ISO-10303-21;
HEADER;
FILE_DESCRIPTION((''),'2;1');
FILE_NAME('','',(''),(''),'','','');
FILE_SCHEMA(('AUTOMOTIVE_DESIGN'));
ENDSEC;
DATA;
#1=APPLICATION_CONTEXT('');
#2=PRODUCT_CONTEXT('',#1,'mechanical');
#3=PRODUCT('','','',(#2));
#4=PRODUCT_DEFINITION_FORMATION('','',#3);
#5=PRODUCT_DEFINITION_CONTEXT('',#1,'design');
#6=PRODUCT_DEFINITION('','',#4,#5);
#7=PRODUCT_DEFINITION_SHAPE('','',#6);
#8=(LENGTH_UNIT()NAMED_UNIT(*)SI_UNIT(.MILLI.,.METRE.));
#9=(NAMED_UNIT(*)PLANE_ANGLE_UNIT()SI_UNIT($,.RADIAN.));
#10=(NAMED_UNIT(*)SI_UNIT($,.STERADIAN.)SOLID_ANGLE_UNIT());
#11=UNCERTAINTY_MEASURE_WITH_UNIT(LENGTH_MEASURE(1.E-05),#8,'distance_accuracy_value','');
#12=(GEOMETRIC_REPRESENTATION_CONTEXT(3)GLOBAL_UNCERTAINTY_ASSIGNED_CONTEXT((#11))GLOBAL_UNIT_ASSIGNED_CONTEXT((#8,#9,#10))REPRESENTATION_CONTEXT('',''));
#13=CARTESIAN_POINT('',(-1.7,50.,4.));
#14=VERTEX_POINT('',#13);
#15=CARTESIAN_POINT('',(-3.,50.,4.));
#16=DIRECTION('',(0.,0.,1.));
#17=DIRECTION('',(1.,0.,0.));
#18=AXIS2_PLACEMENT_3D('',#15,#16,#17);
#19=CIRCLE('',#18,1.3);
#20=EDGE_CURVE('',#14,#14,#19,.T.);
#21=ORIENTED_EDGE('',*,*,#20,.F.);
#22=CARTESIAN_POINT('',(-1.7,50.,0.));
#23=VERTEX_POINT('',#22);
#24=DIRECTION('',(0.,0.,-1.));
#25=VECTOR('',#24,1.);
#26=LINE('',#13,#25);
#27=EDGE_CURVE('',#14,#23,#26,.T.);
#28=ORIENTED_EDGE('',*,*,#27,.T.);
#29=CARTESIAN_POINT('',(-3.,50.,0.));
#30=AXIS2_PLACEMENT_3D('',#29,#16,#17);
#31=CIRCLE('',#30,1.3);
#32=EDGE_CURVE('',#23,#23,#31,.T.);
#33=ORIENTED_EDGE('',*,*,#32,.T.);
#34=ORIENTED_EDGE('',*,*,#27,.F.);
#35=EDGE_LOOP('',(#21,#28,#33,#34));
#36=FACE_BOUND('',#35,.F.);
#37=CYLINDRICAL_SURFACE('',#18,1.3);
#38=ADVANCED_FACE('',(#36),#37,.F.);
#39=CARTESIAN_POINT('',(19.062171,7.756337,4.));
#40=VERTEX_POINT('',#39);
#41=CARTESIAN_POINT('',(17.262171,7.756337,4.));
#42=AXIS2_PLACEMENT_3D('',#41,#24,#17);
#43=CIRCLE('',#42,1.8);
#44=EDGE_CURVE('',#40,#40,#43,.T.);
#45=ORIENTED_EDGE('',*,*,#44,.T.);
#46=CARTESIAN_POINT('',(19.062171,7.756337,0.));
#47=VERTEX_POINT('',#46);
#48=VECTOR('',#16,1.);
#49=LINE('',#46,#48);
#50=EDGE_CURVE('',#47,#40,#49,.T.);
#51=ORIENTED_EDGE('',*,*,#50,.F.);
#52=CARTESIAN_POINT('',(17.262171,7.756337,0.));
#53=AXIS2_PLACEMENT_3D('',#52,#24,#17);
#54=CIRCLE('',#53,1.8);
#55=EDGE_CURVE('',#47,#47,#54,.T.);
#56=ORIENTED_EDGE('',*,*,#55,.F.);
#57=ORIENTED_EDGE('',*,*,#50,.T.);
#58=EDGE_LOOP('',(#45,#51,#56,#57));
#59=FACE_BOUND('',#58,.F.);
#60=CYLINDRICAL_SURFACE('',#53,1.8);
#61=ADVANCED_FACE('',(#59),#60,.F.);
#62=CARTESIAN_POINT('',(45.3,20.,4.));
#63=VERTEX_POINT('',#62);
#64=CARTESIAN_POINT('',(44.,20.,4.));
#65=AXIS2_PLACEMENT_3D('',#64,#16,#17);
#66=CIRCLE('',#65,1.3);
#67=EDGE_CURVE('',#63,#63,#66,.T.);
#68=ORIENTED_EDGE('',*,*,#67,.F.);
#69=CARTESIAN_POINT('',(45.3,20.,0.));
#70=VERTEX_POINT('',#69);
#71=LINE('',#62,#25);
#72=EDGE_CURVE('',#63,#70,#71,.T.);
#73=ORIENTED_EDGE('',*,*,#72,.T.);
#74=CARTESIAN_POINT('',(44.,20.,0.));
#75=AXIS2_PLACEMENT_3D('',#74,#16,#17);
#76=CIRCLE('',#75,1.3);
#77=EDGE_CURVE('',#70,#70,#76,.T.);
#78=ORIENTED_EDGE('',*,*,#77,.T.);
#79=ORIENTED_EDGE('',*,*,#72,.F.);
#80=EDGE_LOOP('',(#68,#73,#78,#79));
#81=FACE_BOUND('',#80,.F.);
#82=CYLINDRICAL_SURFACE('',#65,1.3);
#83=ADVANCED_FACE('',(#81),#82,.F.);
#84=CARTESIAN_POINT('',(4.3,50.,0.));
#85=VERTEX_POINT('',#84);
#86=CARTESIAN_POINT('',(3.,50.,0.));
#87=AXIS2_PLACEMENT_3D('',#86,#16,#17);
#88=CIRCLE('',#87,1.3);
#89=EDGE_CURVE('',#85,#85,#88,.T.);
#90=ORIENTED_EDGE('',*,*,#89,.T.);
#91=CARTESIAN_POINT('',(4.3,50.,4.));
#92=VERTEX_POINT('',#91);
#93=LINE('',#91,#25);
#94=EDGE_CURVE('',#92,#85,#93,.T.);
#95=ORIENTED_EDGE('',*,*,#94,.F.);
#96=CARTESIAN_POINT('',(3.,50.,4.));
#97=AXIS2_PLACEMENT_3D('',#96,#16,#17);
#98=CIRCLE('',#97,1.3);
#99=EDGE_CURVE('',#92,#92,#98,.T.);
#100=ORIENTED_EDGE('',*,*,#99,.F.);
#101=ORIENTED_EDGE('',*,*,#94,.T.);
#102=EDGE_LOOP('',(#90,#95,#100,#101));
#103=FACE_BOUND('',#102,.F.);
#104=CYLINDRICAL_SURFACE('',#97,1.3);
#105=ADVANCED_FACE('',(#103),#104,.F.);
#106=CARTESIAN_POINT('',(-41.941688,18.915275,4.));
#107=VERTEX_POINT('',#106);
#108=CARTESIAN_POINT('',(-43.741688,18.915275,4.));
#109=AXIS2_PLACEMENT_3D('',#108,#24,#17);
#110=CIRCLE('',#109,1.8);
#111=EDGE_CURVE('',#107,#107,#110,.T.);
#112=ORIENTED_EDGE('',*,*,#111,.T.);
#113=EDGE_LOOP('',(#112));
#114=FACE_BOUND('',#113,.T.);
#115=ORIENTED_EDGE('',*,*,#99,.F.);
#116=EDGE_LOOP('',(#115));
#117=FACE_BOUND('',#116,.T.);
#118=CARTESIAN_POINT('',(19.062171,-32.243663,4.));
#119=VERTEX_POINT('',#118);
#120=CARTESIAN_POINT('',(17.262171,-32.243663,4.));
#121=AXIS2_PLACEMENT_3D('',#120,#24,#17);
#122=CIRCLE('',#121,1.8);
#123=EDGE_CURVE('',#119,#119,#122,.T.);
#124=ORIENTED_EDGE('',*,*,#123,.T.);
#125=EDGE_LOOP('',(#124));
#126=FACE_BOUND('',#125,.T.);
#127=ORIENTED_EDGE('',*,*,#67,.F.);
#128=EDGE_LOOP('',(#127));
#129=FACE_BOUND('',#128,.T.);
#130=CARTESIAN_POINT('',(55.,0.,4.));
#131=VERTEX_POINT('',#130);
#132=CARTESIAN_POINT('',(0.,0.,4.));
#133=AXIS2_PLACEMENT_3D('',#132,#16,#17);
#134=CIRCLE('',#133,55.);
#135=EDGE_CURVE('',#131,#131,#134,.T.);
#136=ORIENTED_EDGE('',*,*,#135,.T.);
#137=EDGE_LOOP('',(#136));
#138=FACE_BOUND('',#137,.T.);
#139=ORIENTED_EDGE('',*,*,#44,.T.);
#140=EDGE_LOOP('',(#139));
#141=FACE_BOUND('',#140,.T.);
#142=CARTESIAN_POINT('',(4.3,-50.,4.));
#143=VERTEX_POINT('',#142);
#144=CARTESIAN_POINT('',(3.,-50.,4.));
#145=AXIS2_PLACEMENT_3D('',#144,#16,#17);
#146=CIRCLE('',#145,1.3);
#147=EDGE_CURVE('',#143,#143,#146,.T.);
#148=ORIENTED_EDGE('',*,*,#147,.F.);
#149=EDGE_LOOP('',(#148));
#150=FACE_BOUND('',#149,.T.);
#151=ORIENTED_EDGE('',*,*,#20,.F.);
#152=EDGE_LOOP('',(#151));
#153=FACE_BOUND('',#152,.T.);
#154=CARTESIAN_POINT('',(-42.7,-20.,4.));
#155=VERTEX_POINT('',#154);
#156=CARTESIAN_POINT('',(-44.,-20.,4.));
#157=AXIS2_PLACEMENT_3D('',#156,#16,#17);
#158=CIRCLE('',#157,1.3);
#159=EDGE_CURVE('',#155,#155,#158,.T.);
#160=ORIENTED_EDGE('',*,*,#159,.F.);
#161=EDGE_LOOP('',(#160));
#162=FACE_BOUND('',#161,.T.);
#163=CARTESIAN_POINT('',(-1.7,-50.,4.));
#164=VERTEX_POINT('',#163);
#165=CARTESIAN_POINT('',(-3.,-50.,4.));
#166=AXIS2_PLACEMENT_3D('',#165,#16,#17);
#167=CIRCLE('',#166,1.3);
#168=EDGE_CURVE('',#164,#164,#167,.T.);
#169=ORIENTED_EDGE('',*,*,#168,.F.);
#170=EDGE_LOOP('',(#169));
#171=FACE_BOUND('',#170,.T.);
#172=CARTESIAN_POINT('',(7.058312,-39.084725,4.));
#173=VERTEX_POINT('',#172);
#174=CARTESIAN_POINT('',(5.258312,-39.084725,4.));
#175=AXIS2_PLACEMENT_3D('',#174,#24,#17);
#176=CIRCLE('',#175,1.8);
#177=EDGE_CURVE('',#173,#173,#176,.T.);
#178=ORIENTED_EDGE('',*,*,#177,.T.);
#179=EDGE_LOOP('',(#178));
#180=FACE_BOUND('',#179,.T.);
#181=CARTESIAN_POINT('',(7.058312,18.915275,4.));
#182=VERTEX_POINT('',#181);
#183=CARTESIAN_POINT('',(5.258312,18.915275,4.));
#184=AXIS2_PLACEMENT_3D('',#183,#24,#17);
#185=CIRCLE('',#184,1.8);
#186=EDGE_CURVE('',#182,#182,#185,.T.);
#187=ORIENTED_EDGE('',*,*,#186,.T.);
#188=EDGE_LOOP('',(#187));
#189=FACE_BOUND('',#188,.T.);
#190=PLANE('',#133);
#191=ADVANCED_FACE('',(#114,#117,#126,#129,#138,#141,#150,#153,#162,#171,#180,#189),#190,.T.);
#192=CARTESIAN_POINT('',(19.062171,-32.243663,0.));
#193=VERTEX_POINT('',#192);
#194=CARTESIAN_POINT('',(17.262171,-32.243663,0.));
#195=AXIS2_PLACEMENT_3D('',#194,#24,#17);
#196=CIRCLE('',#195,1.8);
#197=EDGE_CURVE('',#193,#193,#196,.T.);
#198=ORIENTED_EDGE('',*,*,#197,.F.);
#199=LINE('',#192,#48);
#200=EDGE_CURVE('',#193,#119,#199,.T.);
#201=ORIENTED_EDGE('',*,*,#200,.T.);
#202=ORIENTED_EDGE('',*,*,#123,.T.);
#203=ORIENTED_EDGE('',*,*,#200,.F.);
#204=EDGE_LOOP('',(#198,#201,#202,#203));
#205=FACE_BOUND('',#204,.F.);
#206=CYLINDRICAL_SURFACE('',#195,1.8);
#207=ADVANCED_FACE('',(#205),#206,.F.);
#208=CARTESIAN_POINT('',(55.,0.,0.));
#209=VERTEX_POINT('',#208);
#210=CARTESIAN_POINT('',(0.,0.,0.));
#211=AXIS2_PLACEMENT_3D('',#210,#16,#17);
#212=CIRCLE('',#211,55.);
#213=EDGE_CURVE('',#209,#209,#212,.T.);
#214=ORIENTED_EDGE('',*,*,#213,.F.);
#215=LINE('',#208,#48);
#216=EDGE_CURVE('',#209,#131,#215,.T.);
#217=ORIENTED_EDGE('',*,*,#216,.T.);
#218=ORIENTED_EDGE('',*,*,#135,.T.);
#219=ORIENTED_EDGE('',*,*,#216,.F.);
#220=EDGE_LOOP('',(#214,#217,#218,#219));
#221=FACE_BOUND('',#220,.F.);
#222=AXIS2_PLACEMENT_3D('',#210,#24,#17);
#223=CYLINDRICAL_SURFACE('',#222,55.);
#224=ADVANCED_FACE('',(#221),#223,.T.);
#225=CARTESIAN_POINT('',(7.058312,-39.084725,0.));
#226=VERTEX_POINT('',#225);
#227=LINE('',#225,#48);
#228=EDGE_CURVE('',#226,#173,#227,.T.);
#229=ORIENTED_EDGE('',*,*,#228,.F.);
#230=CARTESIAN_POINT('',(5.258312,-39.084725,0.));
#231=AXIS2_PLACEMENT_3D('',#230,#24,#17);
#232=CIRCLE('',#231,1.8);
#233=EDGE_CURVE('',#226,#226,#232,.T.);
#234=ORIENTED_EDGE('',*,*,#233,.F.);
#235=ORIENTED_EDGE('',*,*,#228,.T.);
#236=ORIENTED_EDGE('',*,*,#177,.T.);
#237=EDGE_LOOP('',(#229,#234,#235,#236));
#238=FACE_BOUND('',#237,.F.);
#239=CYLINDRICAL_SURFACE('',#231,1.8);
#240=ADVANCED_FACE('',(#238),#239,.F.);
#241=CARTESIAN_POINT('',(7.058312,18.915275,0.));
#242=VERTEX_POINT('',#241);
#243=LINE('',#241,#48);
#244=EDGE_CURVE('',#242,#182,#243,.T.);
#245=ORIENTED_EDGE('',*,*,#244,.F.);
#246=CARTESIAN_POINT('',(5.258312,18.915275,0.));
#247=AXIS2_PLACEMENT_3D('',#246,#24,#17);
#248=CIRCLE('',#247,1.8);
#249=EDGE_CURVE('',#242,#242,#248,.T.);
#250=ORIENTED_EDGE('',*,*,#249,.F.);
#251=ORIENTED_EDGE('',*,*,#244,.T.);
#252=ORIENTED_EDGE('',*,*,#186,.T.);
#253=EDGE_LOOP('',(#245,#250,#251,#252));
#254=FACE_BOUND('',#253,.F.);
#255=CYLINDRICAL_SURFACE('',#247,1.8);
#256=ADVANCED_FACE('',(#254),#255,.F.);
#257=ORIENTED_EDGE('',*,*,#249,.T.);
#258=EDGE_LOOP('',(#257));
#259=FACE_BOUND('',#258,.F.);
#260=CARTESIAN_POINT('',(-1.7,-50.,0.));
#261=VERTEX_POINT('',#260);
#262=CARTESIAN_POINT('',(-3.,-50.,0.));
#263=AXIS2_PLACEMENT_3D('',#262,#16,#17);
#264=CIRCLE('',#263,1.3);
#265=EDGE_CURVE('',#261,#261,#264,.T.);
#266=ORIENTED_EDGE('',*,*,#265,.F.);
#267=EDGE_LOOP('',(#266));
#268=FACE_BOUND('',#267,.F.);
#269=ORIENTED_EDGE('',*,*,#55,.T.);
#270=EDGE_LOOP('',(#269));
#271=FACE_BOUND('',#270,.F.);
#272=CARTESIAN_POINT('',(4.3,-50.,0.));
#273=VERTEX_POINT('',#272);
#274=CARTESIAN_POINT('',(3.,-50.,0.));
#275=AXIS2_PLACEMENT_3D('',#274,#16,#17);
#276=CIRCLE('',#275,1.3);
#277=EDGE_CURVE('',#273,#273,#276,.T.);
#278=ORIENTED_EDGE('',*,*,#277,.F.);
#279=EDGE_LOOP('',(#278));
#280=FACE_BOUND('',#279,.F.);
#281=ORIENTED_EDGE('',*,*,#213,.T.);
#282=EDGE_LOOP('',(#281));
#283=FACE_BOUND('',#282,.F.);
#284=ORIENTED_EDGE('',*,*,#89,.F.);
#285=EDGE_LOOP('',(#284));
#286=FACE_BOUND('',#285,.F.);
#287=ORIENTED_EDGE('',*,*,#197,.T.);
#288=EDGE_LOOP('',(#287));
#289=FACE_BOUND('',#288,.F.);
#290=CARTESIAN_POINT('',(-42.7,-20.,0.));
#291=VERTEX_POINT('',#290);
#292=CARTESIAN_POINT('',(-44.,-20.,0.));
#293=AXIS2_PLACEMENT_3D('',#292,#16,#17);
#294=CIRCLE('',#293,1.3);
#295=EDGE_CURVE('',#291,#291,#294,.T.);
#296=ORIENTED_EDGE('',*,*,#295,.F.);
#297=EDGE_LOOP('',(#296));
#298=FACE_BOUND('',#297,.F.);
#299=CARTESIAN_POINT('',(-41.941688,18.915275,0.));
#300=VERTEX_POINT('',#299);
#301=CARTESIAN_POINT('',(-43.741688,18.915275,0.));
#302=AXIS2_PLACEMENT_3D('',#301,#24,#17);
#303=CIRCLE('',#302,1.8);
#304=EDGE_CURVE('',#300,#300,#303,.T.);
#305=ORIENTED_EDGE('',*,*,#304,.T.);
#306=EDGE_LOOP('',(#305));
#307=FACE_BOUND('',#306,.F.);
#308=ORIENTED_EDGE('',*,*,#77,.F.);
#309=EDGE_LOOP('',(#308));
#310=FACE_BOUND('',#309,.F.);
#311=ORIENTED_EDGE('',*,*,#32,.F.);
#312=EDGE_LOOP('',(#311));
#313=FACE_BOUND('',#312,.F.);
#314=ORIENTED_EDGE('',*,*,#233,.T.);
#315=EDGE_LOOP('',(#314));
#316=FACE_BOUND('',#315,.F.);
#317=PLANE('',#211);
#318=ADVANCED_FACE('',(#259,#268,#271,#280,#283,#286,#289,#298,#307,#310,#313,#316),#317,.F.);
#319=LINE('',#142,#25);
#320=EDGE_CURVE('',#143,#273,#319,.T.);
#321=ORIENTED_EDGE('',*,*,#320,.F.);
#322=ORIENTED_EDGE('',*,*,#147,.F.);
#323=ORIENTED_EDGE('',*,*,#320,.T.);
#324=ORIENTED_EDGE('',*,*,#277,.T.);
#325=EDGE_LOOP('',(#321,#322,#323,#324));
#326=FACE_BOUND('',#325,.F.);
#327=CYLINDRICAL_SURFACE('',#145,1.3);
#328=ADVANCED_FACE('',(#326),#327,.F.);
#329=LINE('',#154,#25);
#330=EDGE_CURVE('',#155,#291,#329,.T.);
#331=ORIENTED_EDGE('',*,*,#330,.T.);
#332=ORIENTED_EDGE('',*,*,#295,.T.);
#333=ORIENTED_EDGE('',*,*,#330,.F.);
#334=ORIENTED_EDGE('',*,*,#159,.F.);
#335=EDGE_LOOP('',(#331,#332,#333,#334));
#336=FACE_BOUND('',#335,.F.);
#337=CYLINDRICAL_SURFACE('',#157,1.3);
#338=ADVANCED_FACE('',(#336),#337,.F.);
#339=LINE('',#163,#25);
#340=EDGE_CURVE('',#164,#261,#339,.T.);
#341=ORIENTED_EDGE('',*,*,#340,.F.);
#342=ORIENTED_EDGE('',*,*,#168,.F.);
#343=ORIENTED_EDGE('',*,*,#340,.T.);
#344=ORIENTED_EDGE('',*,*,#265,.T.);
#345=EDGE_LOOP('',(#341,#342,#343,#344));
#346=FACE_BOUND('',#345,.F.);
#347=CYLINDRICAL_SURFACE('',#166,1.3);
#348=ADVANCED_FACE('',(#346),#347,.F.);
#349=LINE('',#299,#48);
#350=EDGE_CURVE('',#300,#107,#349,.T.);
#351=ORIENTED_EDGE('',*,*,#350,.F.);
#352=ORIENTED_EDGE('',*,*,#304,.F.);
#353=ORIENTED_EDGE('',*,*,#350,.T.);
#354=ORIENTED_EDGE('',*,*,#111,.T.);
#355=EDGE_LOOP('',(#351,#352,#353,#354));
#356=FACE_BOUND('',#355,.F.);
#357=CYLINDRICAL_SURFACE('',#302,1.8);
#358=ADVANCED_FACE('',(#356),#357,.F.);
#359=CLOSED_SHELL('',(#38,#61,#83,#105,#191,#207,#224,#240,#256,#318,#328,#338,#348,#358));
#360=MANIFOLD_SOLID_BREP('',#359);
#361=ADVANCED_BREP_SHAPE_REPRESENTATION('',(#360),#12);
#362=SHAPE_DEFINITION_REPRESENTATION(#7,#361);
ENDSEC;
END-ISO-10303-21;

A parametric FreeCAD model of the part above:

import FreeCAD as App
import Part
import Sketcher

doc = App.newDocument("Part")
body = doc.addObject("PartDesign::Body", "Body")

# Sketch on XY plane
sketch1 = body.newObject("Sketcher::SketchObject", "Sketch")
sketch1.AttachmentSupport = (doc.getObject("XY_Plane"), [""])
sketch1.MapMode = "FlatFace"
sketch1.addGeometry(Part.Circle(App.Vector(0, 0, 0), App.Vector(0, 0, 1), 55), False)
sketch1.addConstraint([
    Sketcher.Constraint("Coincident", 0, 3, -1, 1),
    Sketcher.Constraint("Diameter", 0, 110.0),
])
pad1 = body.newObject("PartDesign::Pad", "Pad")
pad1.Profile = sketch1
pad1.Length = 4

# Sketch on XY plane
sketch2 = body.newObject("Sketcher::SketchObject", "Sketch001")
sketch2.AttachmentSupport = (doc.getObject("XY_Plane"), [""])
sketch2.MapMode = "FlatFace"
sketch2.AttachmentOffset = App.Placement(App.Vector(0, 0, 4), App.Rotation())
sketch2.addGeometry([
    Part.Circle(App.Vector(-44, -20, 0), App.Vector(0, 0, 1), 1.3),
    Part.Circle(App.Vector(44, 20, 0), App.Vector(0, 0, 1), 1.3),
], False)
sketch2.addConstraint([
    Sketcher.Constraint("Equal", 0, 1),
    Sketcher.Constraint("Symmetric", 0, 3, 1, 3, -1, 1),
    Sketcher.Constraint("Diameter", 0, 2.6),
    Sketcher.Constraint("DistanceX", 0, 3, -1, 1, 44.0),
    Sketcher.Constraint("DistanceY", 0, 3, -1, 1, 20.0),
])
pocket1 = body.newObject("PartDesign::Pocket", "Pocket")
pocket1.Profile = sketch2
pocket1.Length = 5

# Sketch on XY plane
sketch3 = body.newObject("Sketcher::SketchObject", "Sketch002")
sketch3.AttachmentSupport = (doc.getObject("XY_Plane"), [""])
sketch3.MapMode = "FlatFace"
sketch3.AttachmentOffset = App.Placement(App.Vector(0, 0, 4), App.Rotation())
sketch3.addGeometry([
    Part.Circle(App.Vector(3, -50, 0), App.Vector(0, 0, 1), 1.3),
    Part.Circle(App.Vector(-3, -50, 0), App.Vector(0, 0, 1), 1.3),
    Part.Circle(App.Vector(-3, 50, 0), App.Vector(0, 0, 1), 1.3),
    Part.Circle(App.Vector(3, 50, 0), App.Vector(0, 0, 1), 1.3),
], False)
sketch3.addConstraint([
    Sketcher.Constraint("Equal", 0, 1),
    Sketcher.Constraint("Equal", 1, 2),
    Sketcher.Constraint("Equal", 2, 3),
    Sketcher.Constraint("Symmetric", 0, 3, 2, 3, -1, 1),
    Sketcher.Constraint("Symmetric", 1, 3, 3, 3, -1, 1),
    Sketcher.Constraint("Symmetric", 0, 3, 1, 3, -2),
    Sketcher.Constraint("Diameter", 0, 2.6),
    Sketcher.Constraint("DistanceX", -1, 1, 0, 3, 3.0),
    Sketcher.Constraint("DistanceY", 0, 3, -1, 1, 50.0),
])
pocket2 = body.newObject("PartDesign::Pocket", "Pocket001")
pocket2.Profile = sketch3
pocket2.Length = 5

# Sketch on XY plane
sketch4 = body.newObject("Sketcher::SketchObject", "Sketch003")
sketch4.AttachmentSupport = (doc.getObject("XY_Plane"), [""])
sketch4.MapMode = "FlatFace"
sketch4.addGeometry([
    Part.Circle(App.Vector(17.262171, -32.243663, 0), App.Vector(0, 0, 1), 1.8),  # 0
    Part.Circle(App.Vector(17.262171, 7.756337, 0), App.Vector(0, 0, 1), 1.8),  # 1
    Part.Circle(App.Vector(5.258312, -39.084725, 0), App.Vector(0, 0, 1), 1.8),  # 2
    Part.Circle(App.Vector(-43.741688, 18.915275, 0), App.Vector(0, 0, 1), 1.8),  # 3
    Part.Circle(App.Vector(5.258312, 18.915275, 0), App.Vector(0, 0, 1), 1.8),  # 4
], False)
sketch4.addConstraint([
    Sketcher.Constraint("Equal", 0, 1),
    Sketcher.Constraint("Equal", 1, 2),
    Sketcher.Constraint("Equal", 2, 3),
    Sketcher.Constraint("Equal", 3, 4),
    Sketcher.Constraint("Horizontal", 3, 3, 4, 3),
    Sketcher.Constraint("Vertical", 0, 3, 1, 3),
    Sketcher.Constraint("Vertical", 2, 3, 4, 3),
    Sketcher.Constraint("Diameter", 0, 3.6),
    Sketcher.Constraint("DistanceY", 0, 3, 1, 3, 40.0),
    Sketcher.Constraint("DistanceX", 3, 3, 2, 3, 49.0),
    Sketcher.Constraint("DistanceY", 2, 3, 3, 3, 58.0),
    Sketcher.Constraint("DistanceX", -1, 1, 0, 3, 17.262171),
    Sketcher.Constraint("DistanceX", 3, 3, -1, 1, 43.741688),
    Sketcher.Constraint("DistanceY", 1, 3, 3, 3, 11.158938),
    Sketcher.Constraint("DistanceY", 0, 3, -1, 1, 32.243663),
])
pocket3 = body.newObject("PartDesign::Pocket", "Pocket002")
pocket3.Profile = sketch4
pocket3.Length = 5
pocket3.Reversed = True

doc.recompute()
